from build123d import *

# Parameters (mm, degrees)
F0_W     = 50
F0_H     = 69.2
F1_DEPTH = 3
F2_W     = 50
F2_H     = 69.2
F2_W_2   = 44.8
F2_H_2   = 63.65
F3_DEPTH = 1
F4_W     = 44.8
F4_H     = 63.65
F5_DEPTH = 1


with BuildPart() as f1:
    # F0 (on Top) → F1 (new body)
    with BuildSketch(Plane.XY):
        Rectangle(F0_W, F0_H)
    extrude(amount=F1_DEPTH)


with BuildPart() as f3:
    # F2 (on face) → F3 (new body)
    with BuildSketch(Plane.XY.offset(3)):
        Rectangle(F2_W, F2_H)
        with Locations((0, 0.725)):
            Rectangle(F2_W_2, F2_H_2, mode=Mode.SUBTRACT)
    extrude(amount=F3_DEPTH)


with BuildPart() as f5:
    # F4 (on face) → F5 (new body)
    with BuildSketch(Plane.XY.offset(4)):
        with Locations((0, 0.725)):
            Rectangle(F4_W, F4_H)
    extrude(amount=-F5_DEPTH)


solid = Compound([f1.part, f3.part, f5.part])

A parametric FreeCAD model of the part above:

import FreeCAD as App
import Part
import Sketcher
Q = App.Units.Quantity


def add_polygon(sketch, points):
    """Adds a closed chain of lines whose ends are joined by coincident constraints."""
    first, n = sketch.GeometryCount, len(points)
    for a, b in zip(points, points[1:] + points[:1]):
        sketch.addGeometry(Part.LineSegment(App.Vector(*a, 0), App.Vector(*b, 0)), False)
    for i in range(n):
        sketch.addConstraint(Sketcher.Constraint("Coincident", first + i, 2, first + (i + 1) % n, 1))

doc = App.newDocument("Part")
body = doc.addObject("PartDesign::Body", "Body")

sketch1 = doc.addObject("Sketcher::SketchObject", "Sketch")
body.addObject(sketch1)
sketch1.AttachmentSupport = (doc.XY_Plane, [""])
sketch1.MapMode = "FlatFace"
add_polygon(sketch1, [(-25, 34.6), (-25, -34.6), (25, -34.6), (25, 34.6)])
sketch1.addConstraint(Sketcher.Constraint("Vertical", 0))
sketch1.addConstraint(Sketcher.Constraint("Horizontal", 1))
sketch1.addConstraint(Sketcher.Constraint("Vertical", 2))
sketch1.addConstraint(Sketcher.Constraint("Horizontal", 3))
sketch1.addConstraint(Sketcher.Constraint("Symmetric", 0, 2, 2, 2, -1, 1))
sketch1.addConstraint(Sketcher.Constraint("DistanceX", 1, 1, 1, 2, Q("50 mm")))
sketch1.addConstraint(Sketcher.Constraint("DistanceY", 0, 2, 0, 1, Q("69.2 mm")))
pad1 = doc.addObject("PartDesign::Pad", "Pad")
body.addObject(pad1)
pad1.Profile = sketch1
pad1.Length = 3
body2 = doc.addObject("PartDesign::Body", "Body001")

sketch2 = doc.addObject("Sketcher::SketchObject", "Sketch001")
body2.addObject(sketch2)
sketch2.AttachmentSupport = (doc.getObject("XY_Plane001"), [""])
sketch2.MapMode = "FlatFace"
sketch2.AttachmentOffset = App.Placement(App.Vector(0, 0, 3), App.Rotation())
add_polygon(sketch2, [(-25, 34.6), (-25, -34.6), (25, -34.6), (25, 34.6)])
add_polygon(sketch2, [(22.4, -31.1), (-22.4, -31.1), (-22.4, 32.55), (22.4, 32.55)])
sketch2.addConstraint(Sketcher.Constraint("Vertical", 0))
sketch2.addConstraint(Sketcher.Constraint("Horizontal", 1))
sketch2.addConstraint(Sketcher.Constraint("Vertical", 2))
sketch2.addConstraint(Sketcher.Constraint("Horizontal", 3))
sketch2.addConstraint(Sketcher.Constraint("Horizontal", 4))
sketch2.addConstraint(Sketcher.Constraint("Vertical", 5))
sketch2.addConstraint(Sketcher.Constraint("Horizontal", 6))
sketch2.addConstraint(Sketcher.Constraint("Vertical", 7))
sketch2.addConstraint(Sketcher.Constraint("Symmetric", 0, 2, 2, 2, -1, 1))
sketch2.addConstraint(Sketcher.Constraint("DistanceX", 1, 1, 1, 2, Q("50 mm")))
sketch2.addConstraint(Sketcher.Constraint("DistanceX", 4, 2, 4, 1, Q("44.8 mm")))
sketch2.addConstraint(Sketcher.Constraint("DistanceY", 0, 2, 0, 1, Q("69.2 mm")))
sketch2.addConstraint(Sketcher.Constraint("DistanceY", 5, 1, 5, 2, Q("63.65 mm")))
sketch2.addConstraint(Sketcher.Constraint("DistanceX", 4, 2, -1, 1, Q("22.4 mm")))
sketch2.addConstraint(Sketcher.Constraint("DistanceY", 4, 2, -1, 1, Q("31.1 mm")))
pad2 = doc.addObject("PartDesign::Pad", "Pad001")
body2.addObject(pad2)
pad2.Profile = sketch2
pad2.Length = 1
body3 = doc.addObject("PartDesign::Body", "Body002")

sketch3 = doc.addObject("Sketcher::SketchObject", "Sketch002")
body3.addObject(sketch3)
sketch3.AttachmentSupport = (doc.getObject("XY_Plane002"), [""])
sketch3.MapMode = "FlatFace"
sketch3.AttachmentOffset = App.Placement(App.Vector(0, 0, 4), App.Rotation())
add_polygon(sketch3, [(-22.4, 32.55), (-22.4, -31.1), (22.4, -31.1), (22.4, 32.55)])
sketch3.addConstraint(Sketcher.Constraint("Vertical", 0))
sketch3.addConstraint(Sketcher.Constraint("Horizontal", 1))
sketch3.addConstraint(Sketcher.Constraint("Vertical", 2))
sketch3.addConstraint(Sketcher.Constraint("Horizontal", 3))
sketch3.addConstraint(Sketcher.Constraint("DistanceX", 1, 1, 1, 2, Q("44.8 mm")))
sketch3.addConstraint(Sketcher.Constraint("DistanceY", 0, 2, 0, 1, Q("63.65 mm")))
sketch3.addConstraint(Sketcher.Constraint("DistanceX", 0, 2, -1, 1, Q("22.4 mm")))
sketch3.addConstraint(Sketcher.Constraint("DistanceY", 0, 2, -1, 1, Q("31.1 mm")))
pad3 = doc.addObject("PartDesign::Pad", "Pad002")
body3.addObject(pad3)
pad3.Profile = sketch3
pad3.Length = 1
pad3.Reversed = True

doc.recompute()
